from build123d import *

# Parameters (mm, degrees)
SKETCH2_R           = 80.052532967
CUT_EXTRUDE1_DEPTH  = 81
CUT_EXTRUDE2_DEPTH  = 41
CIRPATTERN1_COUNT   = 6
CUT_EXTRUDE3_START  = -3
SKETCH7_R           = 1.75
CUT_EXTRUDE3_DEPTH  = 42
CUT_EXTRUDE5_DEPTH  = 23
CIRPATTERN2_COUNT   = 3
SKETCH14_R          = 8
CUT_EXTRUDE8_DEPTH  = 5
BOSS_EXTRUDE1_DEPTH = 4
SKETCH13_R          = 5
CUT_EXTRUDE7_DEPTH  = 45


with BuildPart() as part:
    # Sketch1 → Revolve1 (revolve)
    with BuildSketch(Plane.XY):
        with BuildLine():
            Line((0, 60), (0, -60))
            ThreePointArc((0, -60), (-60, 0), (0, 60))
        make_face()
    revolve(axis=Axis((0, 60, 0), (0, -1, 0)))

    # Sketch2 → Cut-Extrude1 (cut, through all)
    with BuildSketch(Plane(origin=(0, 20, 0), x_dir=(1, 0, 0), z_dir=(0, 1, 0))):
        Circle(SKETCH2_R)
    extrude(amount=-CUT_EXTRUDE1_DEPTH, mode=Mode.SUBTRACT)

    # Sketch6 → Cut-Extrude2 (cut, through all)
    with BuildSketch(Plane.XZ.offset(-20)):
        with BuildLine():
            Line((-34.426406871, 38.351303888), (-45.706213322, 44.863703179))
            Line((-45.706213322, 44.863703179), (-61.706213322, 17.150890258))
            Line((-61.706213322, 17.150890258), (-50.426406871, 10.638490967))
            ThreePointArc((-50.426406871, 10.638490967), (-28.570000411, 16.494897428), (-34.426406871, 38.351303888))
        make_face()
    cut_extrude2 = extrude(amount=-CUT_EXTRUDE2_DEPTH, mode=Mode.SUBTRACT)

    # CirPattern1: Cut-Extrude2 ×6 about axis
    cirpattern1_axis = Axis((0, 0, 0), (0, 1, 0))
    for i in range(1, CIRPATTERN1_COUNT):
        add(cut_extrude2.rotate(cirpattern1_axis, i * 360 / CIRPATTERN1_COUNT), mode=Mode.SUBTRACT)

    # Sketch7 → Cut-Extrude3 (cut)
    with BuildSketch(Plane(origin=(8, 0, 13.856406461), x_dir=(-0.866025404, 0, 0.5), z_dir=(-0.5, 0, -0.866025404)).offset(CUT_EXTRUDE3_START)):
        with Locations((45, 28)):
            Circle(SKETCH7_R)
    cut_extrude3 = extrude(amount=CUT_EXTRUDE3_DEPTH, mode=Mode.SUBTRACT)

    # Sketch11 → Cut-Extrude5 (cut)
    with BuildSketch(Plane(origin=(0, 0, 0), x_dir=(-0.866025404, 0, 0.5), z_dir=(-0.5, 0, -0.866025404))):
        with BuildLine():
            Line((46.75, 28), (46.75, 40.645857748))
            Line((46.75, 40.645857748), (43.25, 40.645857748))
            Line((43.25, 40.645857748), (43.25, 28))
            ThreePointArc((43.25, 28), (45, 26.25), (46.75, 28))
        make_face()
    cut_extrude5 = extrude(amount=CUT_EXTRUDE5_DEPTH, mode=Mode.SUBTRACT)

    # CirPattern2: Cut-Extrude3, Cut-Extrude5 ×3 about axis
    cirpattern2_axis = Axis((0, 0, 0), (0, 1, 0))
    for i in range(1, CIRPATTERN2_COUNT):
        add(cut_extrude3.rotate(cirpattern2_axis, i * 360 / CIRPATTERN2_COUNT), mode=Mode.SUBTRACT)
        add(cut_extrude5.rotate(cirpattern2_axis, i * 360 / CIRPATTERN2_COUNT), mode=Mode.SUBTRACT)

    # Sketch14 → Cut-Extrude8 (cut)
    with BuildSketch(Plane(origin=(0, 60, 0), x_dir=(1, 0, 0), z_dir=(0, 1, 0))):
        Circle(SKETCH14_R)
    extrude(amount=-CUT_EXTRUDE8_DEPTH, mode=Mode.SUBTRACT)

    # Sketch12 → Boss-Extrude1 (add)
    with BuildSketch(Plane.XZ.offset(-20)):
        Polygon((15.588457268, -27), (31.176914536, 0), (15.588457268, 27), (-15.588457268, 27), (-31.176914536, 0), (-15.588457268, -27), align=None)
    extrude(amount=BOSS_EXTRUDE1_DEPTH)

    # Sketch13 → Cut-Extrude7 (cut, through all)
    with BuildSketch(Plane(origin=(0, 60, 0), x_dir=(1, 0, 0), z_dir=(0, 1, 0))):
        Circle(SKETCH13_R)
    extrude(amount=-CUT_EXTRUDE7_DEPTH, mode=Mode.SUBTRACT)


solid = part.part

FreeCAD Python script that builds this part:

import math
import FreeCAD as App
import Part
import Sketcher

V = App.Vector
Q = App.Units.Quantity


def add_polygon(sketch, points):
    """Adds a closed chain of lines whose ends are joined by coincident constraints."""
    first, n = sketch.GeometryCount, len(points)
    for a, b in zip(points, points[1:] + points[:1]):
        sketch.addGeometry(Part.LineSegment(App.Vector(*a, 0), App.Vector(*b, 0)), False)
    for i in range(n):
        sketch.addConstraint(Sketcher.Constraint("Coincident", first + i, 2, first + (i + 1) % n, 1))

doc = App.newDocument("Part")
params = doc.addObject("Spreadsheet::Sheet", "Params")
for row, (alias, value) in enumerate([
    ("sketch1_radius", "60 mm"),
    ("revolution_angle", "360 deg"),
    ("sketch3_radius", "16 mm"),
    ("sketch4_diameter", "3.5 mm"),
    ("pocket3_length", "42 mm"),
    ("sketch5_radius", "1.75 mm"),
    ("pocket4_length", "23 mm"),
    ("sketch6_diameter", "16 mm"),
    ("pocket5_length", "5 mm"),
    ("pad1_length", "4 mm"),
    ("sketch8_diameter", "10 mm"),
], start=1):
    params.set(f"A{row}", alias)
    params.set(f"B{row}", "=" + value)
    params.setAlias(f"B{row}", alias)

body = doc.addObject("PartDesign::Body", "Body")

sketch1 = body.newObject("Sketcher::SketchObject", "Sketch")
sketch1.AttachmentSupport = (doc.getObject("XY_Plane"), [""])
sketch1.MapMode = "FlatFace"
sketch1.addGeometry(Part.LineSegment(V(0, -60, 0), V(0, 60, 0)), False)
sketch1.addGeometry(Part.ArcOfCircle(Part.Circle(V(0, 0, 0), V(0, 0, 1), 60), math.radians(90), math.radians(270)), False)
sketch1.addConstraint(Sketcher.Constraint("Coincident", 0, 1, 1, 2))
sketch1.addConstraint(Sketcher.Constraint("Coincident", 1, 1, 0, 2))
sketch1.addConstraint(Sketcher.Constraint("Vertical", 0))
sketch1.addConstraint(Sketcher.Constraint("Coincident", 1, 3, -1, 1))
sketch1.addConstraint(Sketcher.Constraint("PointOnObject", 0, 1, -2))
sketch1.addConstraint(Sketcher.Constraint("Radius", 1, Q("60 mm")))
sketch1.setExpression("Constraints[5]", "Params.sketch1_radius")
revolution = body.newObject("PartDesign::Revolution", "Revolution")
revolution.Profile = sketch1
revolution.ReferenceAxis = (sketch1, ["V_Axis"])
revolution.setExpression("Angle", "Params.revolution_angle")

sketch2 = body.newObject("Sketcher::SketchObject", "Sketch001")
sketch2.AttachmentSupport = (doc.getObject("XZ_Plane"), [""])
sketch2.MapMode = "FlatFace"
sketch2.AttachmentOffset = App.Placement(V(0, 0, -20), App.Rotation())
sketch2.addGeometry(Part.Circle(V(0, 0, 0), V(0, 0, 1), 80), False)
sketch2.addConstraint(Sketcher.Constraint("Coincident", 0, 3, -1, 1))
sketch2.addConstraint(Sketcher.Constraint("Diameter", 0, Q("160.105066 mm")))
pocket1 = body.newObject("PartDesign::Pocket", "Pocket")
pocket1.Profile = sketch2
pocket1.Type = "ThroughAll"
pocket1.Reversed = True

sketch3 = body.newObject("Sketcher::SketchObject", "Sketch002")
sketch3.AttachmentSupport = (doc.getObject("XZ_Plane"), [""])
sketch3.MapMode = "FlatFace"
sketch3.AttachmentOffset = App.Placement(V(0, 0, -20), App.Rotation())
sketch3.addGeometry(Part.LineSegment(V(-34, 38, 0), V(-46, 45, 0)), False)
sketch3.addGeometry(Part.LineSegment(V(-46, 45, 0), V(-62, 17, 0)), False)
sketch3.addGeometry(Part.LineSegment(V(-62, 17, 0), V(-50, 11, 0)), False)
sketch3.addGeometry(Part.ArcOfCircle(Part.Circle(V(-42, 24, 0), V(0, 0, 1), 16), math.radians(-120), math.radians(60)), False)
sketch3.addConstraint(Sketcher.Constraint("Coincident", 0, 2, 1, 1))
sketch3.addConstraint(Sketcher.Constraint("Coincident", 1, 2, 2, 1))
sketch3.addConstraint(Sketcher.Constraint("Tangent", 2, 2, 3, 1))
sketch3.addConstraint(Sketcher.Constraint("Tangent", 3, 2, 0, 1))
sketch3.addConstraint(Sketcher.Constraint("Perpendicular", 0, 1))
sketch3.addConstraint(Sketcher.Constraint("Perpendicular", 1, 2))
sketch3.addConstraint(Sketcher.Constraint("Radius", 3, Q("16 mm")))
sketch3.addConstraint(Sketcher.Constraint("Angle", 0, Q("150 deg")))
sketch3.addConstraint(Sketcher.Constraint("Distance", 0, Q("13.024799 mm")))
sketch3.addConstraint(Sketcher.Constraint("DistanceY", -1, 1, 1, 2, Q("17.15089 mm")))
sketch3.addConstraint(Sketcher.Constraint("DistanceX", 3, 3, -1, 1, Q("42.426407 mm")))
sketch3.setExpression("Constraints[6]", "Params.sketch3_radius")
pocket2 = body.newObject("PartDesign::Pocket", "Pocket001")
pocket2.Profile = sketch3
pocket2.Type = "ThroughAll"
doc.recompute()

polarpattern = body.newObject("PartDesign::PolarPattern", "PolarPattern")
polarpattern.Originals = [pocket2]
polarpattern.Axis = (doc.getObject("Y_Axis"), [""])
polarpattern.Angle = 360
polarpattern.Occurrences = 6
body.Tip = polarpattern

sketch4 = body.newObject("Sketcher::SketchObject", "Sketch003")
sketch4.Placement = App.Placement(V(9.5, 0, 16.454483), App.Rotation(V(-0.866025404, 0, 0.5), V(0, 1, 0), V(-0.5, 0, -0.866025404), "ZXY"))
sketch4.addGeometry(Part.Circle(V(45, 28, 0), V(0, 0, 1), 1.8), False)
sketch4.addConstraint(Sketcher.Constraint("Diameter", 0, Q("3.5 mm")))
sketch4.addConstraint(Sketcher.Constraint("DistanceX", -1, 1, 0, 3, Q("45 mm")))
sketch4.addConstraint(Sketcher.Constraint("DistanceY", -1, 1, 0, 3, Q("28 mm")))
sketch4.setExpression("Constraints[0]", "Params.sketch4_diameter")
pocket3 = body.newObject("PartDesign::Pocket", "Pocket002")
pocket3.Profile = sketch4
pocket3.setExpression("Length", "Params.pocket3_length")
pocket3.Reversed = True

sketch5 = body.newObject("Sketcher::SketchObject", "Sketch004")
sketch5.Placement = App.Placement(V(0, 0, 0), App.Rotation(V(-0.866025404, 0, 0.5), V(0, 1, 0), V(-0.5, 0, -0.866025404), "ZXY"))
sketch5.addGeometry(Part.LineSegment(V(46.8, 28, 0), V(46.8, 40.6, 0)), False)
sketch5.addGeometry(Part.LineSegment(V(46.8, 40.6, 0), V(43.3, 40.6, 0)), False)
sketch5.addGeometry(Part.LineSegment(V(43.3, 40.6, 0), V(43.3, 28, 0)), False)
sketch5.addGeometry(Part.ArcOfCircle(Part.Circle(V(45, 28, 0), V(0, 0, 1), 1.8), math.radians(180), math.radians(360)), False)
sketch5.addConstraint(Sketcher.Constraint("Coincident", 0, 2, 1, 1))
sketch5.addConstraint(Sketcher.Constraint("Coincident", 1, 2, 2, 1))
sketch5.addConstraint(Sketcher.Constraint("Tangent", 2, 2, 3, 1))
sketch5.addConstraint(Sketcher.Constraint("Tangent", 3, 2, 0, 1))
sketch5.addConstraint(Sketcher.Constraint("Vertical", 0))
sketch5.addConstraint(Sketcher.Constraint("Horizontal", 1))
sketch5.addConstraint(Sketcher.Constraint("Vertical", 2))
sketch5.addConstraint(Sketcher.Constraint("Radius", 3, Q("1.75 mm")))
sketch5.addConstraint(Sketcher.Constraint("DistanceX", -1, 1, 3, 3, Q("45 mm")))
sketch5.addConstraint(Sketcher.Constraint("DistanceY", -1, 1, 3, 3, Q("28 mm")))
sketch5.addConstraint(Sketcher.Constraint("DistanceY", 0, 1, 0, 2, Q("12.645858 mm")))
sketch5.setExpression("Constraints[7]", "Params.sketch5_radius")
pocket4 = body.newObject("PartDesign::Pocket", "Pocket003")
pocket4.Profile = sketch5
pocket4.setExpression("Length", "Params.pocket4_length")
pocket4.Reversed = True
doc.recompute()

polarpattern2 = body.newObject("PartDesign::PolarPattern", "PolarPattern001")
polarpattern2.Originals = [pocket3, pocket4]
polarpattern2.Axis = (doc.getObject("Y_Axis"), [""])
polarpattern2.Angle = 360
polarpattern2.Occurrences = 3
body.Tip = polarpattern2

sketch6 = body.newObject("Sketcher::SketchObject", "Sketch005")
sketch6.AttachmentSupport = (doc.getObject("XZ_Plane"), [""])
sketch6.MapMode = "FlatFace"
sketch6.AttachmentOffset = App.Placement(V(0, 0, -60), App.Rotation())
sketch6.addGeometry(Part.Circle(V(0, 0, 0), V(0, 0, 1), 8), False)
sketch6.addConstraint(Sketcher.Constraint("Coincident", 0, 3, -1, 1))
sketch6.addConstraint(Sketcher.Constraint("Diameter", 0, Q("16 mm")))
sketch6.setExpression("Constraints[1]", "Params.sketch6_diameter")
pocket5 = body.newObject("PartDesign::Pocket", "Pocket004")
pocket5.Profile = sketch6
pocket5.setExpression("Length", "Params.pocket5_length")
pocket5.Reversed = True

sketch7 = body.newObject("Sketcher::SketchObject", "Sketch006")
sketch7.AttachmentSupport = (doc.getObject("XZ_Plane"), [""])
sketch7.MapMode = "FlatFace"
sketch7.AttachmentOffset = App.Placement(V(0, 0, -20), App.Rotation())
add_polygon(sketch7, [(16, -27), (31, 0), (16, 27), (-16, 27), (-31, 0), (-16, -27)])
sketch7.addConstraint(Sketcher.Constraint("Horizontal", 2))
sketch7.addConstraint(Sketcher.Constraint("Horizontal", 5))
sketch7.addConstraint(Sketcher.Constraint("Symmetric", 0, 2, 3, 2, -1, 1))
sketch7.addConstraint(Sketcher.Constraint("Symmetric", 1, 2, 4, 2, -1, 1))
sketch7.addConstraint(Sketcher.Constraint("PointOnObject", 0, 2, -1))
sketch7.addConstraint(Sketcher.Constraint("Parallel", 0, 3))
sketch7.addConstraint(Sketcher.Constraint("Vertical", 2, 2, 4, 2))
sketch7.addConstraint(Sketcher.Constraint("Angle", 0, Q("60 deg")))
sketch7.addConstraint(Sketcher.Constraint("DistanceY", -1, 1, 1, 2, Q("27 mm")))
sketch7.addConstraint(Sketcher.Constraint("DistanceX", 2, 2, 2, 1, Q("31.176915 mm")))
pad1 = body.newObject("PartDesign::Pad", "Pad")
pad1.Profile = sketch7
pad1.setExpression("Length", "Params.pad1_length")

sketch8 = body.newObject("Sketcher::SketchObject", "Sketch007")
sketch8.AttachmentSupport = (doc.getObject("XZ_Plane"), [""])
sketch8.MapMode = "FlatFace"
sketch8.AttachmentOffset = App.Placement(V(0, 0, -60), App.Rotation())
sketch8.addGeometry(Part.Circle(V(0, 0, 0), V(0, 0, 1), 5), False)
sketch8.addConstraint(Sketcher.Constraint("Coincident", 0, 3, -1, 1))
sketch8.addConstraint(Sketcher.Constraint("Diameter", 0, Q("10 mm")))
sketch8.setExpression("Constraints[1]", "Params.sketch8_diameter")
pocket6 = body.newObject("PartDesign::Pocket", "Pocket005")
pocket6.Profile = sketch8
pocket6.Type = "ThroughAll"
pocket6.Reversed = True

doc.recompute()
